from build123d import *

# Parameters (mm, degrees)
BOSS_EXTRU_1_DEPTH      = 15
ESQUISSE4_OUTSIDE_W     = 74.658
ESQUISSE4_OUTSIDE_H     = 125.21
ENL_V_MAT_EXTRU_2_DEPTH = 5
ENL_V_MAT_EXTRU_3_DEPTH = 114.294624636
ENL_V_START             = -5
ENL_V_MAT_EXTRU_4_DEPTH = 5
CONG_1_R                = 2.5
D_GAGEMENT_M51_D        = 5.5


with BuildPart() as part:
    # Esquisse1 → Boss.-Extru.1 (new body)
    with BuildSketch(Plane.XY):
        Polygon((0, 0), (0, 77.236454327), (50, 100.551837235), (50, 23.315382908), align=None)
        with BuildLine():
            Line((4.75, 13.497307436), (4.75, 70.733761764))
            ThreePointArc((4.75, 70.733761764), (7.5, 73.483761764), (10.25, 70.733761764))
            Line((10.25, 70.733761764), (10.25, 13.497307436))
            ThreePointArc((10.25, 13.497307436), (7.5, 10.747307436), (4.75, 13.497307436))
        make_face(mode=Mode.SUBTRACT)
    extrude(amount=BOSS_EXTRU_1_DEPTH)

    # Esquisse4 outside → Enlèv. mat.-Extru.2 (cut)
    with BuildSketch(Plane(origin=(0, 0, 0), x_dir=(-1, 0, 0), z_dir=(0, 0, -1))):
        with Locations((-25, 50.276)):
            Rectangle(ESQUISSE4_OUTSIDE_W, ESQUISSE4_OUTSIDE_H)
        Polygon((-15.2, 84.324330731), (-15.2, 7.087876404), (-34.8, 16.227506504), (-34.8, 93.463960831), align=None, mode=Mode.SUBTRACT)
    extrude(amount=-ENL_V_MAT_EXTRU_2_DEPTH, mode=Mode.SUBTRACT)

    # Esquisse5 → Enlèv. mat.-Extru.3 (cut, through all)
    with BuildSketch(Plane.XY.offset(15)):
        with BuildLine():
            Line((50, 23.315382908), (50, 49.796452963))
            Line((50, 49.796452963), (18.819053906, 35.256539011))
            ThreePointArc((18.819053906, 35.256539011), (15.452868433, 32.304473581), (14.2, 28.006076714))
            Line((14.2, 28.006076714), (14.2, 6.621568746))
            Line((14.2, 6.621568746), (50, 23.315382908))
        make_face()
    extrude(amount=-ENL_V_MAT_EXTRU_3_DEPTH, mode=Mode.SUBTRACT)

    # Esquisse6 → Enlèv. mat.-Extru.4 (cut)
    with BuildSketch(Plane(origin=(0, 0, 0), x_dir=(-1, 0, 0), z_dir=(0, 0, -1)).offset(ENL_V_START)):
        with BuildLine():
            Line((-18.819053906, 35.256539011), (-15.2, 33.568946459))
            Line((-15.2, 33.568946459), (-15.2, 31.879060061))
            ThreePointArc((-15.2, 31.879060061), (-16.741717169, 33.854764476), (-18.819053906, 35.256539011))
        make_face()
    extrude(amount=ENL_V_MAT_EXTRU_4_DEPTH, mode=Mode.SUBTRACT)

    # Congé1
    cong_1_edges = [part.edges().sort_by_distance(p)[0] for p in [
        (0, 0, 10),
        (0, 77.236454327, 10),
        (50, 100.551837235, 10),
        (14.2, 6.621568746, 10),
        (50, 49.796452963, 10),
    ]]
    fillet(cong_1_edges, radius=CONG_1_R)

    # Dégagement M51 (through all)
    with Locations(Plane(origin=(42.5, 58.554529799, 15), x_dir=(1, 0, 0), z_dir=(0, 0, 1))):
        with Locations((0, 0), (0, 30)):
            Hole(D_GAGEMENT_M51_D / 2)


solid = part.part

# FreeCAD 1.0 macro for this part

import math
import FreeCAD as App
import Part
import Sketcher
from FreeCAD import Vector
Q = App.Units.Quantity


def edges_at(feature, points):
    """Names of the edges that pass closest to the given points."""
    edges = feature.Shape.Edges
    near = lambda p: min(range(len(edges)), key=lambda i: edges[i].distToShape(Part.Vertex(*p))[0])
    return sorted({f"Edge{near(p) + 1}" for p in points})


def add_polygon(sketch, points):
    """Adds a closed chain of lines whose ends are joined by coincident constraints."""
    first, n = sketch.GeometryCount, len(points)
    for a, b in zip(points, points[1:] + points[:1]):
        sketch.addGeometry(Part.LineSegment(App.Vector(*a, 0), App.Vector(*b, 0)), False)
    for i in range(n):
        sketch.addConstraint(Sketcher.Constraint("Coincident", first + i, 2, first + (i + 1) % n, 1))

doc = App.newDocument("Part")
body = doc.addObject("PartDesign::Body", "Body")

# Sketch on XY plane
sketch1 = body.newObject("Sketcher::SketchObject", "Sketch")
sketch1.AttachmentSupport = (doc.getObject("XY_Plane"), [""])
sketch1.MapMode = "FlatFace"
add_polygon(sketch1, [(0, 77.2), (0, 0), (50, 23.3), (50, 100.6)])  # lines 0-3
sketch1.addGeometry(Part.LineSegment(Vector(4.8, 13.5, 0), Vector(4.8, 70.7, 0)), False)  # 4
sketch1.addGeometry(Part.ArcOfCircle(Part.Circle(Vector(7.5, 70.7, 0), Vector(0, 0, 1), 2.8), math.radians(0), math.radians(180)), False)  # 5
sketch1.addGeometry(Part.LineSegment(Vector(10.2, 70.7, 0), Vector(10.2, 13.5, 0)), False)  # 6
sketch1.addGeometry(Part.ArcOfCircle(Part.Circle(Vector(7.5, 13.5, 0), Vector(0, 0, 1), 2.8), math.radians(180), math.radians(360)), False)  # 7
sketch1.addConstraint(Sketcher.Constraint("Tangent", 4, 2, 5, 2))
sketch1.addConstraint(Sketcher.Constraint("Tangent", 5, 1, 6, 1))
sketch1.addConstraint(Sketcher.Constraint("Tangent", 6, 2, 7, 2))
sketch1.addConstraint(Sketcher.Constraint("Tangent", 7, 1, 4, 1))
sketch1.addConstraint(Sketcher.Constraint("Vertical", 0))
sketch1.addConstraint(Sketcher.Constraint("Vertical", 2))
sketch1.addConstraint(Sketcher.Constraint("Vertical", 4))
sketch1.addConstraint(Sketcher.Constraint("Vertical", 6))
sketch1.addConstraint(Sketcher.Constraint("Coincident", 0, 2, -1, 1))
sketch1.addConstraint(Sketcher.Constraint("Parallel", 1, 3))
sketch1.addConstraint(Sketcher.Constraint("Angle", 1, Q("25 deg")))
sketch1.addConstraint(Sketcher.Constraint("Radius", 5, Q("2.75 mm")))
sketch1.addConstraint(Sketcher.Constraint("DistanceX", -1, 1, 1, 2, Q("50 mm")))
sketch1.addConstraint(Sketcher.Constraint("DistanceX", -1, 1, 5, 3, Q("7.5 mm")))
sketch1.addConstraint(Sketcher.Constraint("DistanceY", 0, 2, 0, 1, Q("77.236454 mm")))
sketch1.addConstraint(Sketcher.Constraint("DistanceY", 4, 1, 4, 2, Q("57.236454 mm")))
sketch1.addConstraint(Sketcher.Constraint("DistanceY", -1, 1, 5, 3, Q("70.733762 mm")))
pad1 = body.newObject("PartDesign::Pad", "Pad")
pad1.Profile = sketch1
pad1.Length = 15

# Sketch on XY plane
sketch2 = body.newObject("Sketcher::SketchObject", "Sketch001")
sketch2.AttachmentSupport = (doc.getObject("XY_Plane"), [""])
sketch2.MapMode = "FlatFace"
add_polygon(sketch2, [(62, 113), (62, -12), (-12, -12), (-12, 113)])  # lines 0-3
add_polygon(sketch2, [(35, 93), (15, 84), (15, 7), (35, 16)])  # lines 4-7
sketch2.addConstraint(Sketcher.Constraint("Vertical", 0))
sketch2.addConstraint(Sketcher.Constraint("Horizontal", 1))
sketch2.addConstraint(Sketcher.Constraint("Vertical", 2))
sketch2.addConstraint(Sketcher.Constraint("Horizontal", 3))
sketch2.addConstraint(Sketcher.Constraint("Vertical", 5))
sketch2.addConstraint(Sketcher.Constraint("Vertical", 7))
sketch2.addConstraint(Sketcher.Constraint("Parallel", 4, 6))
sketch2.addConstraint(Sketcher.Constraint("Angle", 4, Q("-155 deg")))
sketch2.addConstraint(Sketcher.Constraint("DistanceY", 0, 2, 0, 1, Q("125.21 mm")))
sketch2.addConstraint(Sketcher.Constraint("DistanceX", -1, 1, 4, 2, Q("15.2 mm")))
sketch2.addConstraint(Sketcher.Constraint("DistanceX", -1, 1, 6, 2, Q("34.8 mm")))
sketch2.addConstraint(Sketcher.Constraint("DistanceX", 1, 2, 1, 1, Q("74.658 mm")))
sketch2.addConstraint(Sketcher.Constraint("DistanceX", -1, 1, 0, 2, Q("62.329 mm")))
sketch2.addConstraint(Sketcher.Constraint("DistanceY", 0, 2, -1, 1, Q("12.329 mm")))
sketch2.addConstraint(Sketcher.Constraint("DistanceY", 5, 2, 5, 1, Q("77.236454 mm")))
sketch2.addConstraint(Sketcher.Constraint("DistanceY", -1, 1, 4, 2, Q("84.324331 mm")))
pocket1 = body.newObject("PartDesign::Pocket", "Pocket")
pocket1.Profile = sketch2
pocket1.Length = 5
pocket1.Reversed = True

# Sketch on XY plane
sketch3 = body.newObject("Sketcher::SketchObject", "Sketch002")
sketch3.AttachmentSupport = (doc.getObject("XY_Plane"), [""])
sketch3.MapMode = "FlatFace"
sketch3.AttachmentOffset = App.Placement(Vector(0, 0, 15), App.Rotation())
sketch3.addGeometry(Part.LineSegment(Vector(50, 23, 0), Vector(50, 50, 0)), False)
sketch3.addGeometry(Part.LineSegment(Vector(50, 50, 0), Vector(19, 35, 0)), False)
sketch3.addGeometry(Part.ArcOfCircle(Part.Circle(Vector(22, 28, 0), Vector(0, 0, 1), 8), math.radians(115), math.radians(180)), False)
sketch3.addGeometry(Part.LineSegment(Vector(14, 28, 0), Vector(14, 7, 0)), False)
sketch3.addGeometry(Part.LineSegment(Vector(14, 7, 0), Vector(50, 23, 0)), False)
sketch3.addConstraint(Sketcher.Constraint("Coincident", 0, 2, 1, 1))
sketch3.addConstraint(Sketcher.Constraint("Tangent", 1, 2, 2, 1))
sketch3.addConstraint(Sketcher.Constraint("Tangent", 2, 2, 3, 1))
sketch3.addConstraint(Sketcher.Constraint("Coincident", 3, 2, 4, 1))
sketch3.addConstraint(Sketcher.Constraint("Coincident", 4, 2, 0, 1))
sketch3.addConstraint(Sketcher.Constraint("Vertical", 0))
sketch3.addConstraint(Sketcher.Constraint("Vertical", 3))
sketch3.addConstraint(Sketcher.Constraint("Parallel", 1, 4))
sketch3.addConstraint(Sketcher.Constraint("Radius", 2, Q("8 mm")))
sketch3.addConstraint(Sketcher.Constraint("Angle", 1, Q("-155 deg")))
sketch3.addConstraint(Sketcher.Constraint("DistanceX", -1, 1, 0, 2, Q("50 mm")))
sketch3.addConstraint(Sketcher.Constraint("DistanceX", -1, 1, 2, 3, Q("22.2 mm")))
sketch3.addConstraint(Sketcher.Constraint("DistanceY", 0, 1, 0, 2, Q("26.48107 mm")))
sketch3.addConstraint(Sketcher.Constraint("DistanceY", -1, 1, 1, 2, Q("35.256539 mm")))
pocket2 = body.newObject("PartDesign::Pocket", "Pocket001")
pocket2.Profile = sketch3
pocket2.Type = "ThroughAll"

# Sketch on XY plane
sketch4 = body.newObject("Sketcher::SketchObject", "Sketch003")
sketch4.AttachmentSupport = (doc.getObject("XY_Plane"), [""])
sketch4.MapMode = "FlatFace"
sketch4.AttachmentOffset = App.Placement(Vector(0, 0, 5), App.Rotation())
sketch4.addGeometry(Part.LineSegment(Vector(15.2, 33.6, 0), Vector(18.8, 35.3, 0)), False)
sketch4.addGeometry(Part.ArcOfCircle(Part.Circle(Vector(22.2, 28, 0), Vector(0, 0, 1), 8), math.radians(115), math.radians(151)), False)
sketch4.addGeometry(Part.LineSegment(Vector(15.2, 31.9, 0), Vector(15.2, 33.6, 0)), False)
sketch4.addConstraint(Sketcher.Constraint("Tangent", 0, 2, 1, 1))
sketch4.addConstraint(Sketcher.Constraint("Coincident", 1, 2, 2, 1))
sketch4.addConstraint(Sketcher.Constraint("Coincident", 2, 2, 0, 1))
sketch4.addConstraint(Sketcher.Constraint("Vertical", 2))
sketch4.addConstraint(Sketcher.Constraint("Radius", 1, Q("8 mm")))
sketch4.addConstraint(Sketcher.Constraint("Angle", 0, Q("25 deg")))
sketch4.addConstraint(Sketcher.Constraint("DistanceX", 1, 2, 1, 3, Q("7 mm")))
sketch4.addConstraint(Sketcher.Constraint("DistanceX", -1, 1, 1, 3, Q("22.2 mm")))
sketch4.addConstraint(Sketcher.Constraint("DistanceY", -1, 1, 0, 2, Q("35.256539 mm")))
pocket3 = body.newObject("PartDesign::Pocket", "Pocket002")
pocket3.Profile = sketch4
pocket3.Length = 5
doc.recompute()

fillet = body.newObject("PartDesign::Fillet", "Fillet")
fillet.Base = (pocket3, edges_at(pocket3, [
    (0, 0, 10),
    (0, 77.236, 10),
    (50, 100.552, 10),
    (14.2, 6.622, 10),
    (50, 49.796, 10),
]))
fillet.Radius = 2.5

# Sketch on XY plane
sketch5 = body.newObject("Sketcher::SketchObject", "Sketch004")
sketch5.AttachmentSupport = (doc.getObject("XY_Plane"), [""])
sketch5.MapMode = "FlatFace"
sketch5.AttachmentOffset = App.Placement(Vector(0, 0, 15), App.Rotation())
sketch5.addGeometry(Part.Circle(Vector(42.5, 58.6, 0), Vector(0, 0, 1), 2.8), False)
sketch5.addGeometry(Part.Circle(Vector(42.5, 88.6, 0), Vector(0, 0, 1), 2.8), False)
sketch5.addConstraint(Sketcher.Constraint("Equal", 0, 1))
sketch5.addConstraint(Sketcher.Constraint("Vertical", 0, 3, 1, 3))
sketch5.addConstraint(Sketcher.Constraint("Diameter", 0, Q("5.5 mm")))
sketch5.addConstraint(Sketcher.Constraint("DistanceY", 0, 3, 1, 3, Q("30 mm")))
sketch5.addConstraint(Sketcher.Constraint("DistanceX", -1, 1, 0, 3, Q("42.5 mm")))
sketch5.addConstraint(Sketcher.Constraint("DistanceY", -1, 1, 0, 3, Q("58.55453 mm")))
doc.recompute()
hole = body.newObject("PartDesign::Hole", "Hole")
hole.Profile = sketch5
hole.ThreadType = "None"
hole.Diameter = 5.5
hole.DepthType = "ThroughAll"

doc.recompute()
